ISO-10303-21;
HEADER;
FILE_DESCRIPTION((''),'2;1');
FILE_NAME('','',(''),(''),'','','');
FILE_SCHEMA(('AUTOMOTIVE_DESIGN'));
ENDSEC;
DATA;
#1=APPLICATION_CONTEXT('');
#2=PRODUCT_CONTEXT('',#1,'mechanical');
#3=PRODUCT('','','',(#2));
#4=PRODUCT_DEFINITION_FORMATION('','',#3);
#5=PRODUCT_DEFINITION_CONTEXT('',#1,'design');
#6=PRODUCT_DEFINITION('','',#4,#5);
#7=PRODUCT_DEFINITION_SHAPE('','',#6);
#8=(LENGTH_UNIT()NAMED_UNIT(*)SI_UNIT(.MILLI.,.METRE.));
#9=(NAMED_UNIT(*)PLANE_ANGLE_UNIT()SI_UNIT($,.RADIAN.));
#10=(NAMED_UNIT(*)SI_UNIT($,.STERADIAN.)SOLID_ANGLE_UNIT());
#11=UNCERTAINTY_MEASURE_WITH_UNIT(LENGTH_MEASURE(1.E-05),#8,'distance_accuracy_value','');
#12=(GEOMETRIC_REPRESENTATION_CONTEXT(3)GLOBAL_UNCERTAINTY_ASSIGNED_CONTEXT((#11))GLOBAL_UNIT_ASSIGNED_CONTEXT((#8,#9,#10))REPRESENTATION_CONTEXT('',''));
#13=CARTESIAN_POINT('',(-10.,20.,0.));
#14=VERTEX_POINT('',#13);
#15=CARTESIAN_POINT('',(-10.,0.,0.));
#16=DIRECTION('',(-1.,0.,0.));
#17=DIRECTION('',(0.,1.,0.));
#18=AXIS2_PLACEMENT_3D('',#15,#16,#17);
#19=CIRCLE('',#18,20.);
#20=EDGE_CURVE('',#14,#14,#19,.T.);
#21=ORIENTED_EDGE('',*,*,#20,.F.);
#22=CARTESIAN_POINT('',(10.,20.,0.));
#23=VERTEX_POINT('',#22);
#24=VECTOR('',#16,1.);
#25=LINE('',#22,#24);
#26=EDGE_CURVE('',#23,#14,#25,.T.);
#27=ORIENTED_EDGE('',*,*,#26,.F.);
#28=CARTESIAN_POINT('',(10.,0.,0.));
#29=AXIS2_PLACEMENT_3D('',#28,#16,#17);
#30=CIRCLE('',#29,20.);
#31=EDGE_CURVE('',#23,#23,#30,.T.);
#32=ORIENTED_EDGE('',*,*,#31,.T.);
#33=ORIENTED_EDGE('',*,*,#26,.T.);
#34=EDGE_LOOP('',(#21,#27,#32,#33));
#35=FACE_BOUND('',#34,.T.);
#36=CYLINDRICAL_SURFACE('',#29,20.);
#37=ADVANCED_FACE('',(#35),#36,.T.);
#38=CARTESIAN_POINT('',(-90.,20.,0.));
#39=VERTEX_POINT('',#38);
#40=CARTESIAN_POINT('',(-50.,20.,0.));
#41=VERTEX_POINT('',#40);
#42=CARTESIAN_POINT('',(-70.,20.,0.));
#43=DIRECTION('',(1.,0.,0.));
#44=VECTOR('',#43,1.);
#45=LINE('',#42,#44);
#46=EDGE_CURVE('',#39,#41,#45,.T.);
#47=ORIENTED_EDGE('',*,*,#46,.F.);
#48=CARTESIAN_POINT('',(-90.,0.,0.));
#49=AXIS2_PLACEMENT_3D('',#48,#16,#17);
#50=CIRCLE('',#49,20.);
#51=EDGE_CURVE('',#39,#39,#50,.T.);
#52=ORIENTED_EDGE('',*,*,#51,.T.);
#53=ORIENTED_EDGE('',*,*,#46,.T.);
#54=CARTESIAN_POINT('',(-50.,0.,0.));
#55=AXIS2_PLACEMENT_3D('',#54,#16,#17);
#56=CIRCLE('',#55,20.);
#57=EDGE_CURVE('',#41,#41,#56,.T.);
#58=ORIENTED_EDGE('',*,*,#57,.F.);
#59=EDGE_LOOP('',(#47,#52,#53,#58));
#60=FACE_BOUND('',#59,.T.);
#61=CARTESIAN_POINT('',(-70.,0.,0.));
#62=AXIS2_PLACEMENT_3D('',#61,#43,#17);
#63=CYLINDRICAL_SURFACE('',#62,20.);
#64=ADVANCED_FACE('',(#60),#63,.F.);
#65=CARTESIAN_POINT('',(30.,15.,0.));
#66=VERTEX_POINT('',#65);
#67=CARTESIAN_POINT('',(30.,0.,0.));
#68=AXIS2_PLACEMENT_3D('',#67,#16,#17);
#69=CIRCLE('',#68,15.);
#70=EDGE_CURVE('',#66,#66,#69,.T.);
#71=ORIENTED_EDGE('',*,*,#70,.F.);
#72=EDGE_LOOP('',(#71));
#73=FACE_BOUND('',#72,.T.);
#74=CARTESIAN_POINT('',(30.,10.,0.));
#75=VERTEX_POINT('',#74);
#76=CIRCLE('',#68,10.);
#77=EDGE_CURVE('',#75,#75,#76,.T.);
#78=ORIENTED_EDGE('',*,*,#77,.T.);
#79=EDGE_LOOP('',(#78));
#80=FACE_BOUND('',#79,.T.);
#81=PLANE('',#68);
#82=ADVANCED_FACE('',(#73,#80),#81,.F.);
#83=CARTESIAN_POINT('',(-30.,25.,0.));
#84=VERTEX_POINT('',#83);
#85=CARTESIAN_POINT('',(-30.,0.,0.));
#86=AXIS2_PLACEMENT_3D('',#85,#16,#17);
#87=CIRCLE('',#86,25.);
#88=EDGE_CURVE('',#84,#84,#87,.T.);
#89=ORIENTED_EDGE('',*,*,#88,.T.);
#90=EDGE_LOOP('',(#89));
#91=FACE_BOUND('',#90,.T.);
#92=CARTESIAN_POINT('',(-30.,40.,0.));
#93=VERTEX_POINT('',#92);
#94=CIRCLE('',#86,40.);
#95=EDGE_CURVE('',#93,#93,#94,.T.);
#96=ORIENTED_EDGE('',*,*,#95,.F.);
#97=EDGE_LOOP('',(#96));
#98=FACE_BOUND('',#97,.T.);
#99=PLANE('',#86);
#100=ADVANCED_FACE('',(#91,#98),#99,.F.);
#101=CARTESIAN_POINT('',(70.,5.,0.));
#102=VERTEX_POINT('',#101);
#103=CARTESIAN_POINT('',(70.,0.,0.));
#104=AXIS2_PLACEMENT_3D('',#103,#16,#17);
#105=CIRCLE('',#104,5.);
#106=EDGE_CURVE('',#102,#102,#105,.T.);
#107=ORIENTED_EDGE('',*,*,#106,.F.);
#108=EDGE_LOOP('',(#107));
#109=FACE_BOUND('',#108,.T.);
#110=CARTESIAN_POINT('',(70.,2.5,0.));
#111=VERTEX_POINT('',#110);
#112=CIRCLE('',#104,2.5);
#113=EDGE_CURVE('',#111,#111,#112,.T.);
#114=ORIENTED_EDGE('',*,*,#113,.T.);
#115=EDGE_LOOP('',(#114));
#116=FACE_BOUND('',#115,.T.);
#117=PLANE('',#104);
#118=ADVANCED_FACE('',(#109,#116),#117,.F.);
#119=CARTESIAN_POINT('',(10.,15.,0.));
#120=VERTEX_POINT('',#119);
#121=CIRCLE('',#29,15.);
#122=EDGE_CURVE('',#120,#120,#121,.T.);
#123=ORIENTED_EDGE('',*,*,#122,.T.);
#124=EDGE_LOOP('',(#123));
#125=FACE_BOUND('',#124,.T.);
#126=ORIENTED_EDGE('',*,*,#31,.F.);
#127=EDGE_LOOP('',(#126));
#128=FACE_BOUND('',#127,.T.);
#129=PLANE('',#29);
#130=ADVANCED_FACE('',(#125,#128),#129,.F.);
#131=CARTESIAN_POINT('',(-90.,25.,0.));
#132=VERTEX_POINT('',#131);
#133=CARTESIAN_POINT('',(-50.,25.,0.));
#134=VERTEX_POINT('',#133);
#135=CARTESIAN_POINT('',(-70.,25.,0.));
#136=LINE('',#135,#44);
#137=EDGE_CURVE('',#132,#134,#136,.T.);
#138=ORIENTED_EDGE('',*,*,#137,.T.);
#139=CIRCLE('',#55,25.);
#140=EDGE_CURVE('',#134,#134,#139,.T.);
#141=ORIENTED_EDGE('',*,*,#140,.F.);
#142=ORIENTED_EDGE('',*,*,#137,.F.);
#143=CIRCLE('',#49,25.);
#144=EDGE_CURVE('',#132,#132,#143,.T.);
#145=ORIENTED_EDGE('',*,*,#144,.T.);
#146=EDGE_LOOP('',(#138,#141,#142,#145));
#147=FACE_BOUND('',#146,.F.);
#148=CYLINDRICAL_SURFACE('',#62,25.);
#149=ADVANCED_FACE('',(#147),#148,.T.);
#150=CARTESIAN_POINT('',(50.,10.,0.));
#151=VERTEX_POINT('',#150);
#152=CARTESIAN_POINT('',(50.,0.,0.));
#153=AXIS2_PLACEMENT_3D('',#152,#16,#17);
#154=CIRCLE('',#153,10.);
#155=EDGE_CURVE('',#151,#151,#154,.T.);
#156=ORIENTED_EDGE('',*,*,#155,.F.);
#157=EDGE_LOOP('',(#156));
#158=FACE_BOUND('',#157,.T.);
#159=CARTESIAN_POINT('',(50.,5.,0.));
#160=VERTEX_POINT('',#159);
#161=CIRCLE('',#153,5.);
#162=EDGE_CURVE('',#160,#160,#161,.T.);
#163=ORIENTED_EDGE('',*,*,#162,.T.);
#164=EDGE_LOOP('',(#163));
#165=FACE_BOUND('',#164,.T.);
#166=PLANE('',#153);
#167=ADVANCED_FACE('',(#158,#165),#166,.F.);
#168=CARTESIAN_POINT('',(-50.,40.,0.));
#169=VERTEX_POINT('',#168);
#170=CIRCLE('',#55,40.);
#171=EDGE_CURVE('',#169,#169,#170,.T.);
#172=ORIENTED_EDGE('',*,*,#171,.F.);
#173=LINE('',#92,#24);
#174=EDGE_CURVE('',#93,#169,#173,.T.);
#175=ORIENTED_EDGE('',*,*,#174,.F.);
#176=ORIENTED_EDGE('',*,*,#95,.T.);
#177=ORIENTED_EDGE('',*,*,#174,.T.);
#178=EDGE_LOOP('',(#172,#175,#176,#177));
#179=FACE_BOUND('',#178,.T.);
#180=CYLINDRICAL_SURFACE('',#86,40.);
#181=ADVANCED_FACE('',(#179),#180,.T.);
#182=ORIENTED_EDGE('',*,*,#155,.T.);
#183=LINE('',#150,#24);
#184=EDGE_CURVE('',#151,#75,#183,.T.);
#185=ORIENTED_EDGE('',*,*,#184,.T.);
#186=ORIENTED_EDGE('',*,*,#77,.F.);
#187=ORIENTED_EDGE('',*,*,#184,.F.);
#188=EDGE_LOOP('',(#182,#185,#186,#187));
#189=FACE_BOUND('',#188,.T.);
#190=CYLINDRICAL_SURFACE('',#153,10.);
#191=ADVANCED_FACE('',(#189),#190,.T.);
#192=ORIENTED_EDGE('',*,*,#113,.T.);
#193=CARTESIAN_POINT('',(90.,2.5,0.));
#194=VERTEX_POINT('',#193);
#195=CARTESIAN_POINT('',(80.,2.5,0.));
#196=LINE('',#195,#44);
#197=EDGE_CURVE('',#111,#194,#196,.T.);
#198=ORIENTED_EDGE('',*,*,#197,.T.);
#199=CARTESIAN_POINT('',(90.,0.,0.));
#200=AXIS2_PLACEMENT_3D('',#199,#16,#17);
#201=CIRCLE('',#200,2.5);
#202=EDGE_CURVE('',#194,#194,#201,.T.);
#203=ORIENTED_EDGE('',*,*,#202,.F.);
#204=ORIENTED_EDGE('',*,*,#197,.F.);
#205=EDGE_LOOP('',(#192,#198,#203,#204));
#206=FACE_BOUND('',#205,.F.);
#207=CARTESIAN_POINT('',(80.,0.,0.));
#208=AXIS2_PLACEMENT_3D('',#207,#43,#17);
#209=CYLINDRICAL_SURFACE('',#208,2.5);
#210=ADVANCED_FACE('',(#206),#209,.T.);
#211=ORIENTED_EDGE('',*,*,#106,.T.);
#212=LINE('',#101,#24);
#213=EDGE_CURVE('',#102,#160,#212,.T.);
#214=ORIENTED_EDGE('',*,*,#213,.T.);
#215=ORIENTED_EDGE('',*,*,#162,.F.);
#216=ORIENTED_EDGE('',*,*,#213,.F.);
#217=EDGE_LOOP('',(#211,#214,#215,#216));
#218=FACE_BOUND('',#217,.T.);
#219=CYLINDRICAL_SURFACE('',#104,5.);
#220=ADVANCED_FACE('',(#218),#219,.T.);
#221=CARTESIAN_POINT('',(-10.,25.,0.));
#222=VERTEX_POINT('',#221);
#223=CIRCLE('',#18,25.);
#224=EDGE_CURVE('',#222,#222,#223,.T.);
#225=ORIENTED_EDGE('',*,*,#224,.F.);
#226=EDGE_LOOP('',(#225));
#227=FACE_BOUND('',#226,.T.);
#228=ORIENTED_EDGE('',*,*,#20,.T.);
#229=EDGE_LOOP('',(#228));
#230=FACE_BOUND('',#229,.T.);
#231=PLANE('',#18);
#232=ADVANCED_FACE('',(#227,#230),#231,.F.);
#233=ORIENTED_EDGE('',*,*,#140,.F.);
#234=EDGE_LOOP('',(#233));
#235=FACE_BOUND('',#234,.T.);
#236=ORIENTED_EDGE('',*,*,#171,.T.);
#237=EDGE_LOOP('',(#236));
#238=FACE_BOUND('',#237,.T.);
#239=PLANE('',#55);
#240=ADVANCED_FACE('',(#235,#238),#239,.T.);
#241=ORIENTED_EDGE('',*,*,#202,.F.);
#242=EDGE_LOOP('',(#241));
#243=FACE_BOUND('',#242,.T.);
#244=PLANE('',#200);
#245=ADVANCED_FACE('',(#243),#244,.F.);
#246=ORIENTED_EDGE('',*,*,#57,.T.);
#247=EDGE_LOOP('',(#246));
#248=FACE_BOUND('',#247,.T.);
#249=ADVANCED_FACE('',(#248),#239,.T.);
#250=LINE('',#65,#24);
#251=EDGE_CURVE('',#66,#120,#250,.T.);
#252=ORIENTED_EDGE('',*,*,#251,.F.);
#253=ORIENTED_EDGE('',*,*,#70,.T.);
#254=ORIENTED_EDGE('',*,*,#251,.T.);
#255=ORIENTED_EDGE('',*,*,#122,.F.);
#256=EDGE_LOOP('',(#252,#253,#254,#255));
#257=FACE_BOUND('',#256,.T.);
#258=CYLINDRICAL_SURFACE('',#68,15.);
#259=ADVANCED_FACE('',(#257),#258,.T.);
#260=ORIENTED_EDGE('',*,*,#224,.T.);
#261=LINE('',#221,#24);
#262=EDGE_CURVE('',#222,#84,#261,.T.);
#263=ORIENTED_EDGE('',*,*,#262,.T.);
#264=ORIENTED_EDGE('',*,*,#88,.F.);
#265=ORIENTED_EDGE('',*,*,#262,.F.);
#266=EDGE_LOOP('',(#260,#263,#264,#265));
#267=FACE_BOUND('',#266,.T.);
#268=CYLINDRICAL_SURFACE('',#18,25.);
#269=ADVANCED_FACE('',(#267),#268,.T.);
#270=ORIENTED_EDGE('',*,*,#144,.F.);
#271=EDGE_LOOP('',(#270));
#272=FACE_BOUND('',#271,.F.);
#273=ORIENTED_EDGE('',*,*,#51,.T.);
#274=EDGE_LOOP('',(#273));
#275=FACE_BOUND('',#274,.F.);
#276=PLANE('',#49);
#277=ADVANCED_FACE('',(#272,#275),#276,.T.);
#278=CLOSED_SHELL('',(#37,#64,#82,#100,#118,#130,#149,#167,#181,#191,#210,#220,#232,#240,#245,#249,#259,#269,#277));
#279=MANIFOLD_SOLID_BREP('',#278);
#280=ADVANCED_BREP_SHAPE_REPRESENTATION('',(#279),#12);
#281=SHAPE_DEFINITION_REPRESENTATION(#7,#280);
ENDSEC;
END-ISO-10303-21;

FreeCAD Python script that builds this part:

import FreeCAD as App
import Part
import Sketcher

V = App.Vector
Q = App.Units.Quantity


def add_polygon(sketch, points):
    """Adds a closed chain of lines whose ends are joined by coincident constraints."""
    first, n = sketch.GeometryCount, len(points)
    for a, b in zip(points, points[1:] + points[:1]):
        sketch.addGeometry(Part.LineSegment(App.Vector(*a, 0), App.Vector(*b, 0)), False)
    for i in range(n):
        sketch.addConstraint(Sketcher.Constraint("Coincident", first + i, 2, first + (i + 1) % n, 1))

doc = App.newDocument("Part")
params = doc.addObject("Spreadsheet::Sheet", "Params")
for row, (alias, value) in enumerate([
    ("sketch1_width", "140 mm"),
    ("sketch1_width2", "40 mm"),
    ("sketch1_height", "5 mm"),
    ("sketch1_height2", "15 mm"),
    ("revolution_angle", "360 deg"),
], start=1):
    params.set(f"A{row}", alias)
    params.set(f"B{row}", "=" + value)
    params.setAlias(f"B{row}", alias)

body = doc.addObject("PartDesign::Body", "Body")

# Sketch on XY plane
sketch1 = body.newObject("Sketcher::SketchObject", "Sketch")
sketch1.AttachmentSupport = (doc.getObject("XY_Plane"), [""])
sketch1.MapMode = "FlatFace"
add_polygon(sketch1, [(-50, 0), (90, 0), (90, 2.5), (70, 2.5), (70, 5), (50, 5), (50, 10), (30, 10), (30, 15), (10, 15), (10, 20), (-10, 20), (-10, 25), (-30, 25), (-30, 40), (-50, 40), (-50, 25), (-90, 25), (-90, 20), (-50, 20)])  # lines 0-19
sketch1.addConstraint([
    Sketcher.Constraint("Horizontal", 0),
    Sketcher.Constraint("Vertical", 1),
    Sketcher.Constraint("Horizontal", 2),
    Sketcher.Constraint("Vertical", 3),
    Sketcher.Constraint("Horizontal", 4),
    Sketcher.Constraint("Vertical", 5),
    Sketcher.Constraint("Horizontal", 6),
    Sketcher.Constraint("Vertical", 7),
    Sketcher.Constraint("Horizontal", 8),
    Sketcher.Constraint("Vertical", 9),
    Sketcher.Constraint("Horizontal", 10),
    Sketcher.Constraint("Vertical", 11),
    Sketcher.Constraint("Horizontal", 12),
    Sketcher.Constraint("Vertical", 13),
    Sketcher.Constraint("Horizontal", 14),
    Sketcher.Constraint("Vertical", 15),
    Sketcher.Constraint("Horizontal", 16),
    Sketcher.Constraint("Vertical", 17),
    Sketcher.Constraint("Horizontal", 18),
    Sketcher.Constraint("Vertical", 19),
    Sketcher.Constraint("PointOnObject", 0, 2, -1),
    Sketcher.Constraint("Horizontal", 12, 2, 15, 2),
    Sketcher.Constraint("Horizontal", 10, 2, 17, 2),
    Sketcher.Constraint("Vertical", 15, 2, 18, 2),
    Sketcher.Constraint("Equal", 2, 4),
    Sketcher.Constraint("Equal", 4, 6),
    Sketcher.Constraint("Equal", 6, 8),
    Sketcher.Constraint("Equal", 8, 10),
    Sketcher.Constraint("Equal", 10, 12),
    Sketcher.Constraint("Equal", 12, 14),
    Sketcher.Constraint("Equal", 1, 3),
    Sketcher.Constraint("Equal", 5, 7),
    Sketcher.Constraint("Equal", 7, 9),
    Sketcher.Constraint("Equal", 9, 11),
    Sketcher.Constraint("Equal", 14, 19),
    Sketcher.Constraint("DistanceX", 0, 1, 0, 2, Q("140 mm")),
    Sketcher.Constraint("DistanceX", 16, 2, 16, 1, Q("40 mm")),
    Sketcher.Constraint("DistanceY", 5, 1, 5, 2, Q("5 mm")),
    Sketcher.Constraint("DistanceY", 13, 1, 13, 2, Q("15 mm")),
    Sketcher.Constraint("DistanceX", -1, 1, 0, 2, Q("90 mm")),
])
sketch1.setExpression("Constraints[55]", "Params.sketch1_width")
sketch1.setExpression("Constraints[56]", "Params.sketch1_width2")
sketch1.setExpression("Constraints[57]", "Params.sketch1_height")
sketch1.setExpression("Constraints[58]", "Params.sketch1_height2")
revolution = body.newObject("PartDesign::Revolution", "Revolution")
revolution.Profile = sketch1
revolution.ReferenceAxis = (sketch1, ["H_Axis"])
revolution.setExpression("Angle", "Params.revolution_angle")

doc.recompute()
